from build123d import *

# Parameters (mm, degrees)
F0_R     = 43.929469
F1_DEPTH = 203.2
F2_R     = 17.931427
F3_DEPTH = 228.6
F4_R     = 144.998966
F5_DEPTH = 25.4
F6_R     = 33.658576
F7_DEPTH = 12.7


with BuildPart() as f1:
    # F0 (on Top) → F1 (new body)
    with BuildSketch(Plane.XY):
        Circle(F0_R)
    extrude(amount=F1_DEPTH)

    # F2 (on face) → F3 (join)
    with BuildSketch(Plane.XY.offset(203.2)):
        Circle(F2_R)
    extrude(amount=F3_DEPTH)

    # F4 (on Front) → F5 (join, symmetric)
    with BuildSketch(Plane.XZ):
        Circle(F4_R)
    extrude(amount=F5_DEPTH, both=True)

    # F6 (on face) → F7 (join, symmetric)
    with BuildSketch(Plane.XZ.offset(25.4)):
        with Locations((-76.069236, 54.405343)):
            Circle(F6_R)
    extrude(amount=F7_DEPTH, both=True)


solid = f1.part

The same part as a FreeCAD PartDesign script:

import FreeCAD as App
import Part
import Sketcher
from FreeCAD import Vector
Q = App.Units.Quantity

doc = App.newDocument("Part")
body = doc.addObject("PartDesign::Body", "Body")

# Sketch on XY plane
sketch1 = body.newObject("Sketcher::SketchObject", "Sketch")
sketch1.AttachmentSupport = (doc.getObject("XY_Plane"), [""])
sketch1.MapMode = "FlatFace"
sketch1.addGeometry(Part.Circle(Vector(0, 0, 0), Vector(0, 0, 1), 43.929469), False)
sketch1.addConstraint(Sketcher.Constraint("Coincident", 0, 3, -1, 1))
sketch1.addConstraint(Sketcher.Constraint("Diameter", 0, Q("87.858938 mm")))
pad1 = body.newObject("PartDesign::Pad", "Pad")
pad1.Profile = sketch1
pad1.Length = Q("8 in")

# Sketch on XY plane
sketch2 = body.newObject("Sketcher::SketchObject", "Sketch001")
sketch2.AttachmentSupport = (doc.getObject("XY_Plane"), [""])
sketch2.MapMode = "FlatFace"
sketch2.AttachmentOffset = App.Placement(Vector(0, 0, 8 * 25.4), App.Rotation())
sketch2.addGeometry(Part.Circle(Vector(0, 0, 0), Vector(0, 0, 1), 17.931427), False)
sketch2.addConstraint(Sketcher.Constraint("Coincident", 0, 3, -1, 1))
sketch2.addConstraint(Sketcher.Constraint("Diameter", 0, Q("35.862854 mm")))
pad2 = body.newObject("PartDesign::Pad", "Pad001")
pad2.Profile = sketch2
pad2.Length = Q("9 in")

# Sketch on XZ plane
sketch3 = body.newObject("Sketcher::SketchObject", "Sketch002")
sketch3.AttachmentSupport = (doc.getObject("XZ_Plane"), [""])
sketch3.MapMode = "FlatFace"
sketch3.addGeometry(Part.Circle(Vector(0, 0, 0), Vector(0, 0, 1), 144.998966), False)
sketch3.addConstraint(Sketcher.Constraint("Coincident", 0, 3, -1, 1))
sketch3.addConstraint(Sketcher.Constraint("Diameter", 0, Q("289.997932 mm")))
pad3 = body.newObject("PartDesign::Pad", "Pad002")
pad3.Profile = sketch3
pad3.Length = Q("2 in")
pad3.Midplane = True

# Sketch on XZ plane
sketch4 = body.newObject("Sketcher::SketchObject", "Sketch003")
sketch4.AttachmentSupport = (doc.getObject("XZ_Plane"), [""])
sketch4.MapMode = "FlatFace"
sketch4.AttachmentOffset = App.Placement(Vector(0, 0, 1 * 25.4), App.Rotation())
sketch4.addGeometry(Part.Circle(Vector(-76.069236, 54.405343, 0), Vector(0, 0, 1), 33.658576), False)
sketch4.addConstraint(Sketcher.Constraint("Diameter", 0, Q("67.317152 mm")))
sketch4.addConstraint(Sketcher.Constraint("DistanceX", 0, 3, -1, 1, Q("76.069236 mm")))
sketch4.addConstraint(Sketcher.Constraint("DistanceY", -1, 1, 0, 3, Q("54.405343 mm")))
pad4 = body.newObject("PartDesign::Pad", "Pad003")
pad4.Profile = sketch4
pad4.Length = Q("1 in")
pad4.Midplane = True

doc.recompute()
